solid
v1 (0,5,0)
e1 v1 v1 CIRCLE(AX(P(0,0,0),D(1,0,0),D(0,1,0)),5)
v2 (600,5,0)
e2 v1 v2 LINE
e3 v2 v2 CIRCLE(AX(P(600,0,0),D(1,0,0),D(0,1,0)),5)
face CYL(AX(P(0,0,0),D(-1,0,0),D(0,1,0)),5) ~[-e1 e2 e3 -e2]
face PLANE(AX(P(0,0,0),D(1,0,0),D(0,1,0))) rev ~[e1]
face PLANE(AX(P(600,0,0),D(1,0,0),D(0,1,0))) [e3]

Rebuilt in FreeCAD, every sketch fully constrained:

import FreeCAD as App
import Part
import Sketcher

V = App.Vector
Q = App.Units.Quantity

doc = App.newDocument("Part")
body = doc.addObject("PartDesign::Body", "Body")

# Sketch on YZ plane
sketch1 = body.newObject("Sketcher::SketchObject", "Sketch")
sketch1.AttachmentSupport = (doc.getObject("YZ_Plane"), [""])
sketch1.MapMode = "FlatFace"
sketch1.addGeometry(Part.Circle(V(0, 0, 0), V(0, 0, 1), 5), False)
sketch1.addConstraint([
    Sketcher.Constraint("Coincident", 0, 3, -1, 1),
    Sketcher.Constraint("Diameter", 0, Q("10 mm")),
])
pad1 = body.newObject("PartDesign::Pad", "Pad")
pad1.Profile = sketch1
pad1.Length = 600

doc.recompute()
